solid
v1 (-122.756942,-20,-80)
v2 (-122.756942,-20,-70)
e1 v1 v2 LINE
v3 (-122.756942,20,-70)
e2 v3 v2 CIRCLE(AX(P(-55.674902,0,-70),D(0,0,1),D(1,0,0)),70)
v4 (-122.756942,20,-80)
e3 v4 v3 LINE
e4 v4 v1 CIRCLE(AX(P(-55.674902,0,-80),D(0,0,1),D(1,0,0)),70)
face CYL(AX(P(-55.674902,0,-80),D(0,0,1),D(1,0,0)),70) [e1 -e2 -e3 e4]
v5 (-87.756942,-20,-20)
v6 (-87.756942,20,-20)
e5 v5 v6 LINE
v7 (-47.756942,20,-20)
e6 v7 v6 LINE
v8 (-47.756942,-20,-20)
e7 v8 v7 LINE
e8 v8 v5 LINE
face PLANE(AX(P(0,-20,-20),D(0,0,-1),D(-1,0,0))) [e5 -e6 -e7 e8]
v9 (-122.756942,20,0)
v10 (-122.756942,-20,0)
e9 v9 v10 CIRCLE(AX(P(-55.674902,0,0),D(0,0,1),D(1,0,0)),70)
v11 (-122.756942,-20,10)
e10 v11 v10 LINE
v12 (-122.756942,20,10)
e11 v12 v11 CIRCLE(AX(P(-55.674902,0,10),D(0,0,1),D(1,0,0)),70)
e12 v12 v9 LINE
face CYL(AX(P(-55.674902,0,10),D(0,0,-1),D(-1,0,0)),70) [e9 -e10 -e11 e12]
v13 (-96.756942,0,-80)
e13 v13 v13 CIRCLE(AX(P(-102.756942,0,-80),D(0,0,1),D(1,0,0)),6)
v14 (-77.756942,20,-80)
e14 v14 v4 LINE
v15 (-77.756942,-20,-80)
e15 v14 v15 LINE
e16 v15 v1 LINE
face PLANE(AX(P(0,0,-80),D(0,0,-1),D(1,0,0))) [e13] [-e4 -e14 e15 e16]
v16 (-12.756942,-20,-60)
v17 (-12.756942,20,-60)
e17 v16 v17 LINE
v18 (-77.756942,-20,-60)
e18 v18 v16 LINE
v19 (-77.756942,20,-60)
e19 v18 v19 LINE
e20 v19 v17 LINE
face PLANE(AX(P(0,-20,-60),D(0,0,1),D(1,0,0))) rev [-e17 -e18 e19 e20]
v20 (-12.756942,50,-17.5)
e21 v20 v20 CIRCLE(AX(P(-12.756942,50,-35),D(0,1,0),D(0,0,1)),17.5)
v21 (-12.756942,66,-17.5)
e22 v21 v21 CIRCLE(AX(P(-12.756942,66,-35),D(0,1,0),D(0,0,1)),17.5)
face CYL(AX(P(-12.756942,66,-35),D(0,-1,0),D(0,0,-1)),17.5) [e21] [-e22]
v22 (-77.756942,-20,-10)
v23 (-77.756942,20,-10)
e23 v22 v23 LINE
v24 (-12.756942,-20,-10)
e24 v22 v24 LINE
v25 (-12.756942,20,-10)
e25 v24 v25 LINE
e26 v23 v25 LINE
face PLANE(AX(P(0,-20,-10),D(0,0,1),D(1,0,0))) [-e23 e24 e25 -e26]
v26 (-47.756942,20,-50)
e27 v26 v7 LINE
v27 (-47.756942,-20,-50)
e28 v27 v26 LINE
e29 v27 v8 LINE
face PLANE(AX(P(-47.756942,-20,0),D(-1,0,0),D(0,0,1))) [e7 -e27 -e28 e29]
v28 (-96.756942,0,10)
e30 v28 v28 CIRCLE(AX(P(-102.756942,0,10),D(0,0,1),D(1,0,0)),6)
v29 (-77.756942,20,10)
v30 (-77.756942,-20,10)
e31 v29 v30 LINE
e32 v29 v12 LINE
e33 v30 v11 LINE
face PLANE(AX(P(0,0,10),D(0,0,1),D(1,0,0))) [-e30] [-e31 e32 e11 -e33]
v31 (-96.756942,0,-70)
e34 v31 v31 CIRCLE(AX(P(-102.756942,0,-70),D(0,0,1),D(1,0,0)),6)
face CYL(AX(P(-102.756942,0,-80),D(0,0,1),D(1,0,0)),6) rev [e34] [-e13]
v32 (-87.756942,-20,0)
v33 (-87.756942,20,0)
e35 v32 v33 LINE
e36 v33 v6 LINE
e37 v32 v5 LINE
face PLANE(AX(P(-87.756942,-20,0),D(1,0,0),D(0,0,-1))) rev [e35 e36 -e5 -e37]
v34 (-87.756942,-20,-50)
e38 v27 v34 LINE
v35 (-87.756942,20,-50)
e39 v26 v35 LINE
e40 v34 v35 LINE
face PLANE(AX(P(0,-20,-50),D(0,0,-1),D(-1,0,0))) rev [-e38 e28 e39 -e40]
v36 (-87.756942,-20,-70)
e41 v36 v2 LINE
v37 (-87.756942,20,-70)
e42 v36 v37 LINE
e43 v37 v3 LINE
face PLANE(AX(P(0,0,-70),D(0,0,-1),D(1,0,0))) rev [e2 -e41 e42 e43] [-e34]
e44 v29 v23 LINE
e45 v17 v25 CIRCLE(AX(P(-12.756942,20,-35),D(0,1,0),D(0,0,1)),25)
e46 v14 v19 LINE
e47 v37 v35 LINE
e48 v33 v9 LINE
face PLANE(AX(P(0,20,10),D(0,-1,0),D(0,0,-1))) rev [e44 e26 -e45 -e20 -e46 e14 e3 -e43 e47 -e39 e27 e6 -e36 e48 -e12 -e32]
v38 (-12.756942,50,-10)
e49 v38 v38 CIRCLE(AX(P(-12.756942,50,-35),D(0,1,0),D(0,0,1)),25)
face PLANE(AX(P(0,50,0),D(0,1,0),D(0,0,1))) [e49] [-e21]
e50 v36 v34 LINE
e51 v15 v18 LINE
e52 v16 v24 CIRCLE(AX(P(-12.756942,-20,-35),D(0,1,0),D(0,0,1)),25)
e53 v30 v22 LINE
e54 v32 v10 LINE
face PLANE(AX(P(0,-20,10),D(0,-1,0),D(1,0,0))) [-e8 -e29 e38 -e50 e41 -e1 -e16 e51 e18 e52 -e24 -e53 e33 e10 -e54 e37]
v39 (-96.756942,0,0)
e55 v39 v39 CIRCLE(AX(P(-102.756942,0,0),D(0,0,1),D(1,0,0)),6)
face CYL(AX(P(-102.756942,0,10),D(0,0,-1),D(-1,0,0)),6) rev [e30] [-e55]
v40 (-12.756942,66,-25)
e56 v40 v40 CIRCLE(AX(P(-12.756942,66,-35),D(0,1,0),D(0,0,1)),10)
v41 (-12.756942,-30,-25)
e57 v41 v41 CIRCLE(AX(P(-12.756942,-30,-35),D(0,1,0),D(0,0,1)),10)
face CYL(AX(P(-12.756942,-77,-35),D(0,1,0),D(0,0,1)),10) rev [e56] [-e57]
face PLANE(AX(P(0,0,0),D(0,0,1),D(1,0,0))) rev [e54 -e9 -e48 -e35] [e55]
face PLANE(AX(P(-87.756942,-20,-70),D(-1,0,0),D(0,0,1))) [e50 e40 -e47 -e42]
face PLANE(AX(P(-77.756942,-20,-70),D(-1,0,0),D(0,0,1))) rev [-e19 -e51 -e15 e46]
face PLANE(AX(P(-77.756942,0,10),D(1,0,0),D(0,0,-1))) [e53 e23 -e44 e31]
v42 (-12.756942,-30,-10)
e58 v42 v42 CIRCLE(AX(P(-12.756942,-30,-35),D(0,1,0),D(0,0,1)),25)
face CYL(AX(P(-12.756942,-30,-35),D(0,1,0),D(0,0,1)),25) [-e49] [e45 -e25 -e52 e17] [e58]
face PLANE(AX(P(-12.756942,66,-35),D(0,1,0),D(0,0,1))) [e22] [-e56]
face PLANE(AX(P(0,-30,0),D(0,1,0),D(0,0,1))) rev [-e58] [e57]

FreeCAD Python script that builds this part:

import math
import FreeCAD as App
import Part
import Sketcher
from FreeCAD import Vector
Q = App.Units.Quantity

doc = App.newDocument("Part")
body = doc.addObject("PartDesign::Body", "Body")

# Sketch on XY plane
sketch1 = body.newObject("Sketcher::SketchObject", "Sketch")
sketch1.AttachmentSupport = (doc.getObject("XY_Plane"), [""])
sketch1.MapMode = "FlatFace"
sketch1.addGeometry([
    Part.LineSegment(Vector(-78, 20, 0), Vector(-123, 20, 0)),  # 0
    Part.ArcOfCircle(Part.Circle(Vector(-56, 0, 0), Vector(0, 0, 1), 70), math.radians(163), math.radians(197)),  # 1
    Part.LineSegment(Vector(-123, -20, 0), Vector(-78, -20, 0)),  # 2
    Part.LineSegment(Vector(-78, -20, 0), Vector(-78, 20, 0)),  # 3
    Part.Circle(Vector(-103, 0, 0), Vector(0, 0, 1), 6),  # 4
], False)
sketch1.addConstraint([
    Sketcher.Constraint("Coincident", 0, 2, 1, 1),
    Sketcher.Constraint("Coincident", 1, 2, 2, 1),
    Sketcher.Constraint("Coincident", 2, 2, 3, 1),
    Sketcher.Constraint("Coincident", 3, 2, 0, 1),
    Sketcher.Constraint("Horizontal", 0),
    Sketcher.Constraint("Horizontal", 2),
    Sketcher.Constraint("Vertical", 3),
    Sketcher.Constraint("Symmetric", 0, 2, 1, 2, -1),
    Sketcher.Constraint("PointOnObject", 4, 3, -1),
    Sketcher.Constraint("Diameter", 4, Q("12 mm")),
    Sketcher.Constraint("Radius", 1, Q("70 mm")),
    Sketcher.Constraint("DistanceX", 0, 2, 0, 1, Q("45 mm")),
    Sketcher.Constraint("DistanceY", 3, 1, 3, 2, Q("40 mm")),
    Sketcher.Constraint("DistanceX", 0, 2, 4, 3, Q("20 mm")),
    Sketcher.Constraint("DistanceX", 4, 3, -1, 1, Q("102.756942 mm")),
])
pad1 = body.newObject("PartDesign::Pad", "Pad")
pad1.Profile = sketch1
pad1.Length = 10

# Sketch on XZ plane
sketch2 = body.newObject("Sketcher::SketchObject", "Sketch001")
sketch2.AttachmentSupport = (doc.getObject("XZ_Plane"), [""])
sketch2.MapMode = "FlatFace"
sketch2.AttachmentOffset = App.Placement(Vector(0, 0, -20), App.Rotation())
sketch2.addGeometry([
    Part.LineSegment(Vector(-88, 0, 0), Vector(-78, 0, 0)),  # 0
    Part.LineSegment(Vector(-78, 0, 0), Vector(-78, -10, 0)),  # 1
    Part.LineSegment(Vector(-78, -10, 0), Vector(-13, -10, 0)),  # 2
    Part.ArcOfCircle(Part.Circle(Vector(-13, -35, 0), Vector(0, 0, 1), 25), math.radians(90), math.radians(180)),  # 3
    Part.LineSegment(Vector(-38, -35, 0), Vector(-48, -35, 0)),  # 4
    Part.LineSegment(Vector(-48, -35, 0), Vector(-48, -20, 0)),  # 5
    Part.LineSegment(Vector(-48, -20, 0), Vector(-88, -20, 0)),  # 6
    Part.LineSegment(Vector(-88, -20, 0), Vector(-88, 0, 0)),  # 7
], False)
sketch2.addConstraint([
    Sketcher.Constraint("Coincident", 0, 2, 1, 1),
    Sketcher.Constraint("Coincident", 1, 2, 2, 1),
    Sketcher.Constraint("Tangent", 2, 2, 3, 1),
    Sketcher.Constraint("Coincident", 3, 2, 4, 1),
    Sketcher.Constraint("Coincident", 4, 2, 5, 1),
    Sketcher.Constraint("Coincident", 5, 2, 6, 1),
    Sketcher.Constraint("Coincident", 6, 2, 7, 1),
    Sketcher.Constraint("Coincident", 7, 2, 0, 1),
    Sketcher.Constraint("Horizontal", 0),
    Sketcher.Constraint("Vertical", 1),
    Sketcher.Constraint("Horizontal", 2),
    Sketcher.Constraint("Horizontal", 4),
    Sketcher.Constraint("Vertical", 5),
    Sketcher.Constraint("Horizontal", 6),
    Sketcher.Constraint("Vertical", 7),
    Sketcher.Constraint("PointOnObject", 0, 2, -1),
    Sketcher.Constraint("Equal", 0, 4),
    Sketcher.Constraint("Equal", 4, 1),
    Sketcher.Constraint("Radius", 3, Q("25 mm")),
    Sketcher.Constraint("DistanceX", 0, 1, 0, 2, Q("10 mm")),
    Sketcher.Constraint("DistanceX", 2, 1, 2, 2, Q("65 mm")),
    Sketcher.Constraint("DistanceY", 5, 1, 5, 2, Q("15 mm")),
    Sketcher.Constraint("DistanceY", 7, 1, 7, 2, Q("20 mm")),
    Sketcher.Constraint("DistanceX", 3, 3, -1, 1, Q("12.756942 mm")),
])
pad2 = body.newObject("PartDesign::Pad", "Pad001")
pad2.Profile = sketch2
pad2.Length = 40

# Sketch on XZ plane
sketch3 = body.newObject("Sketcher::SketchObject", "Sketch002")
sketch3.AttachmentSupport = (doc.getObject("XZ_Plane"), [""])
sketch3.MapMode = "FlatFace"
sketch3.AttachmentOffset = App.Placement(Vector(0, 0, -20), App.Rotation())
sketch3.addGeometry(Part.Circle(Vector(-13, -35, 0), Vector(0, 0, 1), 25), False)
sketch3.addConstraint([
    Sketcher.Constraint("Diameter", 0, Q("50 mm")),
    Sketcher.Constraint("DistanceY", 0, 3, -1, 1, Q("35 mm")),
    Sketcher.Constraint("DistanceX", 0, 3, -1, 1, Q("12.756942 mm")),
])
pad3 = body.newObject("PartDesign::Pad", "Pad002")
pad3.Profile = sketch3
pad3.Type = "TwoLengths"
pad3.Length = 30
pad3.Length2 = 50
pad3.Reversed = True

# Sketch on XZ plane
sketch4 = body.newObject("Sketcher::SketchObject", "Sketch003")
sketch4.AttachmentSupport = (doc.getObject("XZ_Plane"), [""])
sketch4.MapMode = "FlatFace"
sketch4.AttachmentOffset = App.Placement(Vector(0, 0, -50), App.Rotation())
sketch4.addGeometry(Part.Circle(Vector(-13, -35, 0), Vector(0, 0, 1), 18), False)
sketch4.addConstraint([
    Sketcher.Constraint("Diameter", 0, Q("35 mm")),
    Sketcher.Constraint("DistanceY", 0, 3, -1, 1, Q("35 mm")),
    Sketcher.Constraint("DistanceX", 0, 3, -1, 1, Q("12.756942 mm")),
])
pad4 = body.newObject("PartDesign::Pad", "Pad003")
pad4.Profile = sketch4
pad4.Length = 16
pad4.Reversed = True

# Sketch on XZ plane
sketch5 = body.newObject("Sketcher::SketchObject", "Sketch004")
sketch5.AttachmentSupport = (doc.getObject("XZ_Plane"), [""])
sketch5.MapMode = "FlatFace"
sketch5.AttachmentOffset = App.Placement(Vector(0, 0, -66), App.Rotation())
sketch5.addGeometry(Part.Circle(Vector(-13, -35, 0), Vector(0, 0, 1), 10), False)
sketch5.addConstraint([
    Sketcher.Constraint("Diameter", 0, Q("20 mm")),
    Sketcher.Constraint("DistanceY", 0, 3, -1, 1, Q("35 mm")),
    Sketcher.Constraint("DistanceX", 0, 3, -1, 1, Q("12.756942 mm")),
])
pocket1 = body.newObject("PartDesign::Pocket", "Pocket")
pocket1.Profile = sketch5
pocket1.Length = 143
pocket1.Reversed = True
doc.recompute()

datumplane = body.newObject("PartDesign::Plane", "DatumPlane")
datumplane.AttachmentSupport = (doc.getObject("XY_Plane"), [""])
datumplane.MapMode = "FlatFace"
datumplane.AttachmentOffset = App.Placement(Vector(0, 0, -35), App.Rotation())
mirrored = body.newObject("PartDesign::Mirrored", "Mirrored")
mirrored.Originals = [pad2]
mirrored.MirrorPlane = (datumplane, [""])
body.Tip = mirrored
doc.recompute()

datumplane2 = body.newObject("PartDesign::Plane", "DatumPlane001")
datumplane2.AttachmentSupport = (doc.getObject("XY_Plane"), [""])
datumplane2.MapMode = "FlatFace"
datumplane2.AttachmentOffset = App.Placement(Vector(0, 0, -35), App.Rotation())
mirrored2 = body.newObject("PartDesign::Mirrored", "Mirrored001")
mirrored2.Originals = [pad1]
mirrored2.MirrorPlane = (datumplane2, [""])
body.Tip = mirrored2

doc.recompute()
